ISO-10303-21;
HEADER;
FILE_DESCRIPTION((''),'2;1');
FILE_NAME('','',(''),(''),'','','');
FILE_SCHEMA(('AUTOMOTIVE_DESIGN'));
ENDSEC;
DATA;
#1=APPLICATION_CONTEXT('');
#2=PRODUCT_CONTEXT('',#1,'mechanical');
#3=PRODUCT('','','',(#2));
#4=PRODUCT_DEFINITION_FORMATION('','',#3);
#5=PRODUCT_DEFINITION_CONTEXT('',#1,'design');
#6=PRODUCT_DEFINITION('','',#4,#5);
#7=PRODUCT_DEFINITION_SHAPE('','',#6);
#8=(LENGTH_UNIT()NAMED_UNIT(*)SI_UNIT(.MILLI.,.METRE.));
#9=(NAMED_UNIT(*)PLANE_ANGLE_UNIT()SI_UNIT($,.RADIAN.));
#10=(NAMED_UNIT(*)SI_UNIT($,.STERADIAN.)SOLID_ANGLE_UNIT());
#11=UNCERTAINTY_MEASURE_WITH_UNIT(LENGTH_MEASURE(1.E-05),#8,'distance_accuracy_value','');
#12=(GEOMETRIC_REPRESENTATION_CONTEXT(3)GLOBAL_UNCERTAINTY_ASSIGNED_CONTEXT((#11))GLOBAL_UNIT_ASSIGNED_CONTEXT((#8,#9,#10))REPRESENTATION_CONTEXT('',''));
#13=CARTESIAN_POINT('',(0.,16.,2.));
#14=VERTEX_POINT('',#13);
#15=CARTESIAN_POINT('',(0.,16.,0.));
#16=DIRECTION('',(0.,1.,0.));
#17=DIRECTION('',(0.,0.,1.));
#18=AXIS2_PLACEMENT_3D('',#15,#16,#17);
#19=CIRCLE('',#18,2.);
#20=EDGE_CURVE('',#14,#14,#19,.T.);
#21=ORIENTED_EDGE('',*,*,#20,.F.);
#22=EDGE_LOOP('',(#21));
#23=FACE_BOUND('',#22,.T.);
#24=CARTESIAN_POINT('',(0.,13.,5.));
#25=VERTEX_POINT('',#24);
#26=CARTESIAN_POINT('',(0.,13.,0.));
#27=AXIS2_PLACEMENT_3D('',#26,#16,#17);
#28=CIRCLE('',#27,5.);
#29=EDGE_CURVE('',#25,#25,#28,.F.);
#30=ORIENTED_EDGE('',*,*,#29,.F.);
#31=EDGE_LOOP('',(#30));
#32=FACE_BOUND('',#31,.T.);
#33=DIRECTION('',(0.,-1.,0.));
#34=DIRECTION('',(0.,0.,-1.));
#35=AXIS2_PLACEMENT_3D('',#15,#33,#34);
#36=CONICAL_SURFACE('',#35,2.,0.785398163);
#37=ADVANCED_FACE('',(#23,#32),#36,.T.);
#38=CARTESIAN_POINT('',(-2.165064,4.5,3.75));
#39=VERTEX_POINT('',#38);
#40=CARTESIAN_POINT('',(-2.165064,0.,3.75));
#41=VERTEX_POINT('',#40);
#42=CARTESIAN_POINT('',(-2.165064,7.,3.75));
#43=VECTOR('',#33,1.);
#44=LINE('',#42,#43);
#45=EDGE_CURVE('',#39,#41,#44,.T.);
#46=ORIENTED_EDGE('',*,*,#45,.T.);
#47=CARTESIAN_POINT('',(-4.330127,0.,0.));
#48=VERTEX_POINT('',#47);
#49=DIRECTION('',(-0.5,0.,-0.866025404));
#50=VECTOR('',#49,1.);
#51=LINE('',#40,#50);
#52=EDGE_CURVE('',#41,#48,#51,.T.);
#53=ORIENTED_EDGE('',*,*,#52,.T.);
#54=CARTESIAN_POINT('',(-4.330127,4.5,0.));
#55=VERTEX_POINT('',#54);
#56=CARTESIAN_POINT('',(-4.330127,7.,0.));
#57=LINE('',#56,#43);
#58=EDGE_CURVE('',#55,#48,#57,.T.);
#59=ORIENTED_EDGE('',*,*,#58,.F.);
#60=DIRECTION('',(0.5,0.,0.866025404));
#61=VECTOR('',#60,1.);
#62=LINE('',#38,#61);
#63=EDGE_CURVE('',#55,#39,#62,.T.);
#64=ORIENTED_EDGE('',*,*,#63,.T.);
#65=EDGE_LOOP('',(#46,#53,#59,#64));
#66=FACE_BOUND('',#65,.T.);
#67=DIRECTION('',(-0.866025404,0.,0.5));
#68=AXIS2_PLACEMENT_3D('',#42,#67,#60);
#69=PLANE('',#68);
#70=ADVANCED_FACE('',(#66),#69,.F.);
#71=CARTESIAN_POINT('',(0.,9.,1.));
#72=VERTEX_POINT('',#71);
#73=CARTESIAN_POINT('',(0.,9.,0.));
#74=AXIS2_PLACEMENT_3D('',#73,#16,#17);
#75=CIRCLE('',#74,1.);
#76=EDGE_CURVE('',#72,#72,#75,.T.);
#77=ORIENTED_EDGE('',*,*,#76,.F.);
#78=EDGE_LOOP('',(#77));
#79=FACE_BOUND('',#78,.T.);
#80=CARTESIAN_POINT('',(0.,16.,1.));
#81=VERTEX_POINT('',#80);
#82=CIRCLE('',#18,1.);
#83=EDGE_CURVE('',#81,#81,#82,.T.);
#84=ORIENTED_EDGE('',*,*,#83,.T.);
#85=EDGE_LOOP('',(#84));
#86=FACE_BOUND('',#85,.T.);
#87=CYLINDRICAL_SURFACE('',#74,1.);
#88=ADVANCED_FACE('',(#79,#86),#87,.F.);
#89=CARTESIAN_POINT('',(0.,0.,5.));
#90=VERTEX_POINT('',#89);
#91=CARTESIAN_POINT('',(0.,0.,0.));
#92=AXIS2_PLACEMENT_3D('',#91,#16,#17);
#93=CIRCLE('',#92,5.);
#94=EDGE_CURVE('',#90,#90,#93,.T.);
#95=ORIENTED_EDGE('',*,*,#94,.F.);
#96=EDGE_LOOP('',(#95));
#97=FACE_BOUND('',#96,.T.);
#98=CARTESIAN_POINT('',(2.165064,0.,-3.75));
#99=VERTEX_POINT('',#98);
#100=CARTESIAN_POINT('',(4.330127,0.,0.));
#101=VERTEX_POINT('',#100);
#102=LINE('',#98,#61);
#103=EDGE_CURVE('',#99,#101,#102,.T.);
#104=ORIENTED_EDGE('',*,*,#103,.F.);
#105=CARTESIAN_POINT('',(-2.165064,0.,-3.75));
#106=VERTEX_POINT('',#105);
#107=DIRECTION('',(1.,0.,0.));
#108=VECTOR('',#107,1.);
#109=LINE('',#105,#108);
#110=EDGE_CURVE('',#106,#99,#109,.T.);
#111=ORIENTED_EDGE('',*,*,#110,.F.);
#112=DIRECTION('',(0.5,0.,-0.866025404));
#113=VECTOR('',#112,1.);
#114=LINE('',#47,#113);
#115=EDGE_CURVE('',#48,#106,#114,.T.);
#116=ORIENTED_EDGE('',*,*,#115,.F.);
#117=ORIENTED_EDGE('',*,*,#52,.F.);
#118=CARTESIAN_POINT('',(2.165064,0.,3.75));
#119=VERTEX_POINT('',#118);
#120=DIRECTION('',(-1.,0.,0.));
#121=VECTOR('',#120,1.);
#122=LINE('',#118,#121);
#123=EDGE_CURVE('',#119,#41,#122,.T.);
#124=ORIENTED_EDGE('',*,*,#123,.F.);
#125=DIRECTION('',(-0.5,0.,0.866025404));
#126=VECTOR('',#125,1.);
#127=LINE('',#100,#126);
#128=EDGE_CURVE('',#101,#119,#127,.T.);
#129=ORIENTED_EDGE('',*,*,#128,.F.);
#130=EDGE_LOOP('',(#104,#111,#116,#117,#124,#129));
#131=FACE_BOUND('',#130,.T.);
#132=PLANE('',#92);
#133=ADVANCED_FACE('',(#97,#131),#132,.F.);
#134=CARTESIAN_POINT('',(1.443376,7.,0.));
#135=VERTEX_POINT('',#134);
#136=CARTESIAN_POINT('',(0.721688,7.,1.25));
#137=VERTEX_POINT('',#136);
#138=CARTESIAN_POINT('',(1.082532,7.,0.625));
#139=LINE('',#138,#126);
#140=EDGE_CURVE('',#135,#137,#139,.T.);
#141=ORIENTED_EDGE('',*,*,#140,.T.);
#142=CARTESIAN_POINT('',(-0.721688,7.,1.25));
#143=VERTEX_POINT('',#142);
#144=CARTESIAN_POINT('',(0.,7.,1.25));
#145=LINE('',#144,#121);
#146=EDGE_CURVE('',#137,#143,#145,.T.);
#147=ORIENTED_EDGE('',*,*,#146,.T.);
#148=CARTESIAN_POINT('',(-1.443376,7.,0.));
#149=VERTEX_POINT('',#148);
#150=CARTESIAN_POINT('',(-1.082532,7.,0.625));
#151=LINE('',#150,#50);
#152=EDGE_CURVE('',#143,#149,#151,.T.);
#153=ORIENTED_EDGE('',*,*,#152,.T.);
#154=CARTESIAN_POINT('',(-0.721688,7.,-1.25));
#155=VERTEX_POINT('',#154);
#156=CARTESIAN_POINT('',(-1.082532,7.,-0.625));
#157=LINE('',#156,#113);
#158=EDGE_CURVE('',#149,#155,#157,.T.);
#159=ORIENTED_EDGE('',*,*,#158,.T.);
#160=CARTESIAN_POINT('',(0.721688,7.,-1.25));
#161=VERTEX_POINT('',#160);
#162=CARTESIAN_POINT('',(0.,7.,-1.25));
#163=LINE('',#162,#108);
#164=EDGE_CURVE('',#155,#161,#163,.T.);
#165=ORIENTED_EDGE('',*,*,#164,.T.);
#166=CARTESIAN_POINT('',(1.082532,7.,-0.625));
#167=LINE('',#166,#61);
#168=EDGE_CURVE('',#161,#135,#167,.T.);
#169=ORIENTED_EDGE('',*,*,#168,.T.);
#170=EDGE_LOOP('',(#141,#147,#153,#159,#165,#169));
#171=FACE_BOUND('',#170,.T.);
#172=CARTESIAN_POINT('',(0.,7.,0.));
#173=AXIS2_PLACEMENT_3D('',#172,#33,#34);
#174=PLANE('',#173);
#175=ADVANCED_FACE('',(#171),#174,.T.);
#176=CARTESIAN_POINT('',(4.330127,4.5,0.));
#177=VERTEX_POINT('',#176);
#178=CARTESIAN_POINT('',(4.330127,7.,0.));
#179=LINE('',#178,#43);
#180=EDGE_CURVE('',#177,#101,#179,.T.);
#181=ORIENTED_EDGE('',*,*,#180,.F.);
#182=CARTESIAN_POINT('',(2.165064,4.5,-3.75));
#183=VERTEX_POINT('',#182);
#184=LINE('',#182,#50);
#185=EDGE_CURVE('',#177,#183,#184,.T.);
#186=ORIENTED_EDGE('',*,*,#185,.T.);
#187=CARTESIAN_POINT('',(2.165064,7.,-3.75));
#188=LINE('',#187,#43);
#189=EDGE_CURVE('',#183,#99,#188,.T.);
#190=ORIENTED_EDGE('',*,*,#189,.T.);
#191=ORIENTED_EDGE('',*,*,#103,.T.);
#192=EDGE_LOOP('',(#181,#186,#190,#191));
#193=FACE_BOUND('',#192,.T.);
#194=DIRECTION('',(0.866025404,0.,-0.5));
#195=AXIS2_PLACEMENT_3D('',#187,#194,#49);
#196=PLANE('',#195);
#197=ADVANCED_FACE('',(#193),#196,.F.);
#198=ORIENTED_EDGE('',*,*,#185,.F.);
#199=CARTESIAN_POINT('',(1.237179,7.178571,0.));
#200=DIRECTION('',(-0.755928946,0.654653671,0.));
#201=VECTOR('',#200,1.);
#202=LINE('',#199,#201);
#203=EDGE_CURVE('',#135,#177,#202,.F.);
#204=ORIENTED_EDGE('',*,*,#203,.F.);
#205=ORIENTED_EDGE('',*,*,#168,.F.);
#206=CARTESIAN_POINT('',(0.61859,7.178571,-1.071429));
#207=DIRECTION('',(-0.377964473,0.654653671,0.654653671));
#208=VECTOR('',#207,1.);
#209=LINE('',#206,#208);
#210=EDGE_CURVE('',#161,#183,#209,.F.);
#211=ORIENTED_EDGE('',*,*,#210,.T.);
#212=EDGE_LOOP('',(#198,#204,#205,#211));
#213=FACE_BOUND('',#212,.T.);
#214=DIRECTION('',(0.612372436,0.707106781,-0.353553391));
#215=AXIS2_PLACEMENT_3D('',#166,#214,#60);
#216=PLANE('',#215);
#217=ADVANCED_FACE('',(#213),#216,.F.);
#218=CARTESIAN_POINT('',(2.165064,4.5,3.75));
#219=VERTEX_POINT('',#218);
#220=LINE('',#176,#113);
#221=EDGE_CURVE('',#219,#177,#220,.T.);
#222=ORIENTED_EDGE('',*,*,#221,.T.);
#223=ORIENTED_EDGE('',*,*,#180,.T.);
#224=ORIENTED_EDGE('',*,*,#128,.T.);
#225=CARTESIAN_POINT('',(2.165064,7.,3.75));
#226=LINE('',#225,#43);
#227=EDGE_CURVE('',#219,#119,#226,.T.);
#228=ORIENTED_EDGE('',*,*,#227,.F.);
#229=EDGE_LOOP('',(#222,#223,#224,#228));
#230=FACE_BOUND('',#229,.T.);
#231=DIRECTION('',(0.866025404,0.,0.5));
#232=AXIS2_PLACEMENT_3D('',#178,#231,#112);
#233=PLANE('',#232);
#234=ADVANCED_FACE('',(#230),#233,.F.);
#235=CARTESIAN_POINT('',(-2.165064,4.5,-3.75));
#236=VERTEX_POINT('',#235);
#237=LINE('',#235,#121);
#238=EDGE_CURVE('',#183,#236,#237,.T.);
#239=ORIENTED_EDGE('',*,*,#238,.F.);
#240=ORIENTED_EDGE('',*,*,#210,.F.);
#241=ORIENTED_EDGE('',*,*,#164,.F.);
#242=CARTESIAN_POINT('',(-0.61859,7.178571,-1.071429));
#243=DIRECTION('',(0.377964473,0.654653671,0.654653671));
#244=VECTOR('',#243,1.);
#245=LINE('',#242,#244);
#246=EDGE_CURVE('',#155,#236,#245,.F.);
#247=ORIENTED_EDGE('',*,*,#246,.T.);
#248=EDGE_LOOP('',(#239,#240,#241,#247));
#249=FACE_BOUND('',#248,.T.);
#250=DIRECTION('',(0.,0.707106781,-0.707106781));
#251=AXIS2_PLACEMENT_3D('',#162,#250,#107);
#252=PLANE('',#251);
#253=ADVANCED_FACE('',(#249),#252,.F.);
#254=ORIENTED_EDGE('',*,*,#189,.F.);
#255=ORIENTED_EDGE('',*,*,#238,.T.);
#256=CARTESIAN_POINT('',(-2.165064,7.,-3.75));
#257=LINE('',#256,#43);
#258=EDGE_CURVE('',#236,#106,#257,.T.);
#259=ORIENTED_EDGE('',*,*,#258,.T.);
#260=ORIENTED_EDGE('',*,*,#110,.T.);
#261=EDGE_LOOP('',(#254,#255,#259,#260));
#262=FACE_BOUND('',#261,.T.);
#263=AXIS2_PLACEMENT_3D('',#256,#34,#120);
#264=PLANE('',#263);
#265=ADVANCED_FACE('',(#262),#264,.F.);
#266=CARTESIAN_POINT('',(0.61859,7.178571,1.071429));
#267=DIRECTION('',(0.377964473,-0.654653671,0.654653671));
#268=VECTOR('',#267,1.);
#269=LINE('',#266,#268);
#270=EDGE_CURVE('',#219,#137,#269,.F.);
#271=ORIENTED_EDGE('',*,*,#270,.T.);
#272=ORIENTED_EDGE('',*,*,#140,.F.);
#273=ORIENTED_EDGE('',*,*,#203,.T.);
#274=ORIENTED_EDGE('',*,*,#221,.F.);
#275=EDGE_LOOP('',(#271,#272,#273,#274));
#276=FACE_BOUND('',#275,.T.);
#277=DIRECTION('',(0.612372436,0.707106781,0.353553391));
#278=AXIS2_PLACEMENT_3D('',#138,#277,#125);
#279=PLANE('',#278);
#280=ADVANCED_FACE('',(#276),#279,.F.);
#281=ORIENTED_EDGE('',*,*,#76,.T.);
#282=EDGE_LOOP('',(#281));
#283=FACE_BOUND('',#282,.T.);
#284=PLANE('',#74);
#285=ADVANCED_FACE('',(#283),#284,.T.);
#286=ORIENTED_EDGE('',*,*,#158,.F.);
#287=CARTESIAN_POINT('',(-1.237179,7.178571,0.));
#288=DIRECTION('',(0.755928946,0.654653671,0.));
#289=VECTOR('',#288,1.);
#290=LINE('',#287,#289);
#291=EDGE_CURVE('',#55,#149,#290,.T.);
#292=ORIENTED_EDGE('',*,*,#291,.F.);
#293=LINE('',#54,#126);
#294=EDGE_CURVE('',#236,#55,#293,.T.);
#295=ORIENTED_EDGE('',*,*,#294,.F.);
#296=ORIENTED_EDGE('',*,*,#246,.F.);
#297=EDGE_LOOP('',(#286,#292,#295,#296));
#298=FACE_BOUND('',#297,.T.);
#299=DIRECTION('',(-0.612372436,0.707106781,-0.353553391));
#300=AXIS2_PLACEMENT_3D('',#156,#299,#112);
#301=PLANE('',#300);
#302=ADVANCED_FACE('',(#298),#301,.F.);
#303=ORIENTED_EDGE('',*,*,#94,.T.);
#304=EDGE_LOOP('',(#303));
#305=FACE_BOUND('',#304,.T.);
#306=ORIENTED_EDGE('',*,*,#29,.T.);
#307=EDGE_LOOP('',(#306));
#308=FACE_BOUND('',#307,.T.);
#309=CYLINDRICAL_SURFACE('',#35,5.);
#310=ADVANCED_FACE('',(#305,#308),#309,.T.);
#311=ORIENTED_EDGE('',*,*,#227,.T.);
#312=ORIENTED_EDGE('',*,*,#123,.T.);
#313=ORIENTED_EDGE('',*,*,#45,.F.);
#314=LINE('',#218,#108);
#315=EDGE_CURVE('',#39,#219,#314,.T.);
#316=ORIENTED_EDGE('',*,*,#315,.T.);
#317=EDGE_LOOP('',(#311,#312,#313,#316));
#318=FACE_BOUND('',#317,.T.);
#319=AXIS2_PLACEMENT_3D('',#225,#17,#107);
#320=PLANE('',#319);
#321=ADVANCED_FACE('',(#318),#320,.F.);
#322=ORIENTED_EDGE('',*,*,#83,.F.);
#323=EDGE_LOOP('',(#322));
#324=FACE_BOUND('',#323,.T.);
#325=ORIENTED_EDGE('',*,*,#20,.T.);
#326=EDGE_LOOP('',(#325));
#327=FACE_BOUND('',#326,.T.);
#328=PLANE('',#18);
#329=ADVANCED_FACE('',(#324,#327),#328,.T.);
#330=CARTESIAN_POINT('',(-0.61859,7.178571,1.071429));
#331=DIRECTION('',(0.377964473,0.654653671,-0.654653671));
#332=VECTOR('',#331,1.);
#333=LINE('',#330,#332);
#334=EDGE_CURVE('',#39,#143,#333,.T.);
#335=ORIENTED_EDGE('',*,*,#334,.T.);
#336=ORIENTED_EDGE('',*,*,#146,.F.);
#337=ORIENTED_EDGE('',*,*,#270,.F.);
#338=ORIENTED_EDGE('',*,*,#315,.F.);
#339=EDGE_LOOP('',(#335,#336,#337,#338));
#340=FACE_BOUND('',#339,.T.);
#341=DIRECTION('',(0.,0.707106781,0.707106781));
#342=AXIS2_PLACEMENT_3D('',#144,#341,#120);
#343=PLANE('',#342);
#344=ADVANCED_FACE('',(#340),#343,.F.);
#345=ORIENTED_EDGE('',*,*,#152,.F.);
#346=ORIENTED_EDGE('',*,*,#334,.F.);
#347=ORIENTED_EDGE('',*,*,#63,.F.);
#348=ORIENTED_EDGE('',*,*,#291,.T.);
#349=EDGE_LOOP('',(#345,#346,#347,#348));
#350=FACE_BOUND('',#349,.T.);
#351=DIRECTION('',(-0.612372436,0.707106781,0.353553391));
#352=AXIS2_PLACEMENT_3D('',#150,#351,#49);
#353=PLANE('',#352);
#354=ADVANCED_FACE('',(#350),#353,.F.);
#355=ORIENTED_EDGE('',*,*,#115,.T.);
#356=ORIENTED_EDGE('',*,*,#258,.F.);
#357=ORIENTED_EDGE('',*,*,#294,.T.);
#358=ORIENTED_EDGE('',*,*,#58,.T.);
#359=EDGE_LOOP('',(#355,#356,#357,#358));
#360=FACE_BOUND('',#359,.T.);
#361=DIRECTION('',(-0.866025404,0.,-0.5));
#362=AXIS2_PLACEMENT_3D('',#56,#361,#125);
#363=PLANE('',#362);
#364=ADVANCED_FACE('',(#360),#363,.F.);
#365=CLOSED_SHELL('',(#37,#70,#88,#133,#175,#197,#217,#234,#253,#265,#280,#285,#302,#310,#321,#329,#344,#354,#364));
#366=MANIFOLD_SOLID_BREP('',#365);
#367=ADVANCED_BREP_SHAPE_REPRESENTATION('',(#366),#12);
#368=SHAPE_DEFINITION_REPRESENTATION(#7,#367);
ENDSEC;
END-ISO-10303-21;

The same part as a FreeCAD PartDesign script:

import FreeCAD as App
import Part
import Sketcher

V = App.Vector
Q = App.Units.Quantity


def edges_at(feature, points):
    """Names of the edges that pass closest to the given points."""
    edges = feature.Shape.Edges
    near = lambda p: min(range(len(edges)), key=lambda i: edges[i].distToShape(Part.Vertex(*p))[0])
    return sorted({f"Edge{near(p) + 1}" for p in points})


def add_polygon(sketch, points):
    """Adds a closed chain of lines whose ends are joined by coincident constraints."""
    first, n = sketch.GeometryCount, len(points)
    for a, b in zip(points, points[1:] + points[:1]):
        sketch.addGeometry(Part.LineSegment(App.Vector(*a, 0), App.Vector(*b, 0)), False)
    for i in range(n):
        sketch.addConstraint(Sketcher.Constraint("Coincident", first + i, 2, first + (i + 1) % n, 1))

doc = App.newDocument("Part")
params = doc.addObject("Spreadsheet::Sheet", "Params")
for row, (alias, value) in enumerate([
    ("sketch1_diameter", "10 mm"),
    ("pad1_length", "16 mm"),
    ("chamfer_size", "3 mm"),
    ("sketch2_diameter", "2 mm"),
    ("pocket1_length", "7 mm"),
    ("pocket2_length", "7 mm"),
    ("chamfer2_size", "2.5 mm"),
], start=1):
    params.set(f"A{row}", alias)
    params.set(f"B{row}", "=" + value)
    params.setAlias(f"B{row}", alias)

body = doc.addObject("PartDesign::Body", "Body")

# Sketch on XZ plane
sketch1 = body.newObject("Sketcher::SketchObject", "Sketch")
sketch1.AttachmentSupport = (doc.getObject("XZ_Plane"), [""])
sketch1.MapMode = "FlatFace"
sketch1.addGeometry(Part.Circle(V(0, 0, 0), V(0, 0, 1), 5), False)
sketch1.addConstraint([
    Sketcher.Constraint("Coincident", 0, 3, -1, 1),
    Sketcher.Constraint("Diameter", 0, 10.0),
])
sketch1.setExpression("Constraints[1]", "Params.sketch1_diameter")
pad1 = body.newObject("PartDesign::Pad", "Pad")
pad1.Profile = sketch1
pad1.setExpression("Length", "Params.pad1_length")
pad1.Reversed = True
doc.recompute()

chamfer = body.newObject("PartDesign::Chamfer", "Chamfer")
chamfer.Base = (pad1, edges_at(pad1, [(-5, 16, 0)]))
chamfer.setExpression("Size", "Params.chamfer_size")

# Sketch on XZ plane
sketch2 = body.newObject("Sketcher::SketchObject", "Sketch001")
sketch2.AttachmentSupport = (doc.getObject("XZ_Plane"), [""])
sketch2.MapMode = "FlatFace"
sketch2.AttachmentOffset = App.Placement(V(0, 0, -16), App.Rotation())
sketch2.addGeometry(Part.Circle(V(0, 0, 0), V(0, 0, 1), 1), False)
sketch2.addConstraint([
    Sketcher.Constraint("Coincident", 0, 3, -1, 1),
    Sketcher.Constraint("Diameter", 0, 2.0),
])
sketch2.setExpression("Constraints[1]", "Params.sketch2_diameter")
pocket1 = body.newObject("PartDesign::Pocket", "Pocket")
pocket1.Profile = sketch2
pocket1.setExpression("Length", "Params.pocket1_length")
pocket1.Reversed = True

# Sketch on XZ plane
sketch3 = body.newObject("Sketcher::SketchObject", "Sketch002")
sketch3.AttachmentSupport = (doc.getObject("XZ_Plane"), [""])
sketch3.MapMode = "FlatFace"
add_polygon(sketch3, [(-2.165064, 3.75), (-4.330127, 0), (-2.165064, -3.75), (2.165064, -3.75), (4.330127, 0), (2.165064, 3.75)])  # lines 0-5
sketch3.addConstraint([
    Sketcher.Constraint("Horizontal", 2),
    Sketcher.Constraint("Horizontal", 5),
    Sketcher.Constraint("Symmetric", 0, 2, 3, 2, -1, 1),
    Sketcher.Constraint("Symmetric", 1, 2, 4, 2, -1, 1),
    Sketcher.Constraint("PointOnObject", 0, 2, -1),
    Sketcher.Constraint("Parallel", 0, 3),
    Sketcher.Constraint("Vertical", 2, 2, 4, 2),
    Sketcher.Constraint("Angle", 0, Q("-120 deg")),
    Sketcher.Constraint("DistanceY", 2, 2, 4, 2, 7.5),
    Sketcher.Constraint("DistanceX", 2, 1, 2, 2, 4.330127),
])
pocket2 = body.newObject("PartDesign::Pocket", "Pocket001")
pocket2.Profile = sketch3
pocket2.setExpression("Length", "Params.pocket2_length")
doc.recompute()

chamfer2 = body.newObject("PartDesign::Chamfer", "Chamfer001")
chamfer2.Base = (pocket2, edges_at(pocket2, [
    (0, 7, 3.75),
    (3.248, 7, 1.875),
    (3.248, 7, -1.875),
    (0, 7, -3.75),
    (-3.248, 7, -1.875),
    (-3.248, 7, 1.875),
]))
chamfer2.setExpression("Size", "Params.chamfer2_size")

doc.recompute()
